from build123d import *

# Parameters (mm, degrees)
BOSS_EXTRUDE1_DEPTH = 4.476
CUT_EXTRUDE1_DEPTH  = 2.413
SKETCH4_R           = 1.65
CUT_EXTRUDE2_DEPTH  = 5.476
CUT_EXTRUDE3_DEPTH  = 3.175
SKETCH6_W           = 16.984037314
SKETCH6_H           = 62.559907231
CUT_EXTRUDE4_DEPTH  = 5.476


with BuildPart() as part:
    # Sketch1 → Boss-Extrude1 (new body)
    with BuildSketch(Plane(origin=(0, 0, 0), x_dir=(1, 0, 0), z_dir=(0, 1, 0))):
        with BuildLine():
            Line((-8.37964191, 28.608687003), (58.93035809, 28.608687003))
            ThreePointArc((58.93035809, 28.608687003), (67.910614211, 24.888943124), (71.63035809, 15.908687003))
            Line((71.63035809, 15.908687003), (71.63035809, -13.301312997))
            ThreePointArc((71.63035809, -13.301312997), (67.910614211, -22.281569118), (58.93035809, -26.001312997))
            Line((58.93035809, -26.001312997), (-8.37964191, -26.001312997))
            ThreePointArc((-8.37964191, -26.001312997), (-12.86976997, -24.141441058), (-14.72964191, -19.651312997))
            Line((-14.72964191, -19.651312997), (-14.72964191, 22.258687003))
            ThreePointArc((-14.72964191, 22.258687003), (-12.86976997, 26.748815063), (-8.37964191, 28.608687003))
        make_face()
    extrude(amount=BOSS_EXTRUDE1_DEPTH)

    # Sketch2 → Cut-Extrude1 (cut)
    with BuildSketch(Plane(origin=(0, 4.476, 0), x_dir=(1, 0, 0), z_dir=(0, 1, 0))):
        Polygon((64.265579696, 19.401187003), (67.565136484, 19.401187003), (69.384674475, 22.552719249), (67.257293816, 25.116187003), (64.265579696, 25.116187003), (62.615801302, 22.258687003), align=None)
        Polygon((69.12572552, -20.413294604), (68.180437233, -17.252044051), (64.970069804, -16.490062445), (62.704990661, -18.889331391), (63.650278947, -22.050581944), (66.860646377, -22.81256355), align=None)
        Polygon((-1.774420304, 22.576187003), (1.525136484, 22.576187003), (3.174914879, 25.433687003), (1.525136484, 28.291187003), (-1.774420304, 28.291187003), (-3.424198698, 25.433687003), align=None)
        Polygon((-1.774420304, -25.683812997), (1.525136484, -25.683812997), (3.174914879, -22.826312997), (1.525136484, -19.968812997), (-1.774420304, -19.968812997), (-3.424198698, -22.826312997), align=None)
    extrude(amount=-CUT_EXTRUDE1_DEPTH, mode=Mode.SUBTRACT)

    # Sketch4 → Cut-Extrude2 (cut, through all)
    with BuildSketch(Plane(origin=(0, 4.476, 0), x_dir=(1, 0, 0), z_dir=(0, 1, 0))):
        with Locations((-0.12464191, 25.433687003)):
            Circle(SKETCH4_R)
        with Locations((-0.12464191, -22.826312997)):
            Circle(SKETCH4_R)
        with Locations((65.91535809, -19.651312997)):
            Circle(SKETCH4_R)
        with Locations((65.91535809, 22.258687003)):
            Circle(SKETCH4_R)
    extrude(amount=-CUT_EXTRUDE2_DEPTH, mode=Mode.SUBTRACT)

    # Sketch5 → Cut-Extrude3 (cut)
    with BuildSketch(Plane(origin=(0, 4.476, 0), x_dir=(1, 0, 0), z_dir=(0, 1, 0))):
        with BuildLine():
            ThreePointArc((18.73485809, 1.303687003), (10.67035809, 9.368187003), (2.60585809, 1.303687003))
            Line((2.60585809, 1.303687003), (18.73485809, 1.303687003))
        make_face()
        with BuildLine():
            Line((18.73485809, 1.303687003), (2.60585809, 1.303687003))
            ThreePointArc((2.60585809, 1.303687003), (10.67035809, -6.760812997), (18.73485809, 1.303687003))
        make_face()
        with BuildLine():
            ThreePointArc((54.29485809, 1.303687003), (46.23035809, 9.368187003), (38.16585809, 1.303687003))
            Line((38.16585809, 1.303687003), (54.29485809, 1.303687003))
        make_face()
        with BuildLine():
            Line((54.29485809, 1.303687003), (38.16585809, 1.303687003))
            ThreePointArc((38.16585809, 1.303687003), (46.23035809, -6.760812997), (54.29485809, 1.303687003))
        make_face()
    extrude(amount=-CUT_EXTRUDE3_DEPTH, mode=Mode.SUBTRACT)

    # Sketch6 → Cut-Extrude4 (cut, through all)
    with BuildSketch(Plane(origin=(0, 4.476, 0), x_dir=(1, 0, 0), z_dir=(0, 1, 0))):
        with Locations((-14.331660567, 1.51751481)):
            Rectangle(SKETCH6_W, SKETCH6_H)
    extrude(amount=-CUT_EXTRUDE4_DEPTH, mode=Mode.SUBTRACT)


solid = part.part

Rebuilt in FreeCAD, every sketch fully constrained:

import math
import FreeCAD as App
import Part
import Sketcher
from FreeCAD import Vector
Q = App.Units.Quantity

doc = App.newDocument("Part")
body = doc.addObject("PartDesign::Body", "Body")

# Sketch on XZ plane
sketch1 = body.newObject("Sketcher::SketchObject", "Sketch")
sketch1.AttachmentSupport = (doc.getObject("XZ_Plane"), [""])
sketch1.MapMode = "FlatFace"
sketch1.addGeometry([
    Part.LineSegment(Vector(59, -29, 0), Vector(-8, -29, 0)),  # 0
    Part.ArcOfCircle(Part.Circle(Vector(-8, -22, 0), Vector(0, 0, 1), 6), math.radians(-180), math.radians(-90)),  # 1
    Part.LineSegment(Vector(-15, -22, 0), Vector(-15, 20, 0)),  # 2
    Part.ArcOfCircle(Part.Circle(Vector(-8, 20, 0), Vector(0, 0, 1), 6), math.radians(90), math.radians(180)),  # 3
    Part.LineSegment(Vector(-8, 26, 0), Vector(59, 26, 0)),  # 4
    Part.ArcOfCircle(Part.Circle(Vector(59, 13, 0), Vector(0, 0, 1), 13), math.radians(0), math.radians(90)),  # 5
    Part.LineSegment(Vector(72, 13, 0), Vector(72, -16, 0)),  # 6
    Part.ArcOfCircle(Part.Circle(Vector(59, -16, 0), Vector(0, 0, 1), 13), math.radians(-90), math.radians(0)),  # 7
], False)
sketch1.addConstraint([
    Sketcher.Constraint("Tangent", 0, 2, 1, 2),
    Sketcher.Constraint("Tangent", 1, 1, 2, 1),
    Sketcher.Constraint("Tangent", 2, 2, 3, 2),
    Sketcher.Constraint("Tangent", 3, 1, 4, 1),
    Sketcher.Constraint("Tangent", 4, 2, 5, 2),
    Sketcher.Constraint("Tangent", 5, 1, 6, 1),
    Sketcher.Constraint("Tangent", 6, 2, 7, 2),
    Sketcher.Constraint("Tangent", 7, 1, 0, 1),
    Sketcher.Constraint("Horizontal", 0),
    Sketcher.Constraint("Vertical", 2),
    Sketcher.Constraint("Horizontal", 4),
    Sketcher.Constraint("Vertical", 6),
    Sketcher.Constraint("Equal", 1, 3),
    Sketcher.Constraint("Equal", 5, 7),
    Sketcher.Constraint("Radius", 5, Q("0.5 in")),
    Sketcher.Constraint("Radius", 1, Q("0.25 in")),
    Sketcher.Constraint("DistanceX", 0, 2, 0, 1, Q("2.65 in")),
    Sketcher.Constraint("DistanceY", 2, 1, 2, 2, Q("1.65 in")),
    Sketcher.Constraint("DistanceX", 1, 3, -1, 1, Q("8.379642 mm")),
    Sketcher.Constraint("DistanceY", 1, 3, -1, 1, Q("22.258687 mm")),
])
pad1 = body.newObject("PartDesign::Pad", "Pad")
pad1.Profile = sketch1
pad1.Length = 4.476
pad1.Reversed = True

# Sketch on XZ plane
sketch2 = body.newObject("Sketcher::SketchObject", "Sketch001")
sketch2.AttachmentSupport = (doc.getObject("XZ_Plane"), [""])
sketch2.MapMode = "FlatFace"
sketch2.AttachmentOffset = App.Placement(Vector(0, 0, -4.476), App.Rotation())
sketch2.addGeometry([
    Part.LineSegment(Vector(64.3, -19.4, 0), Vector(67.6, -19.4, 0)),  # 0
    Part.LineSegment(Vector(67.6, -19.4, 0), Vector(69.4, -22.6, 0)),  # 1
    Part.LineSegment(Vector(69.4, -22.6, 0), Vector(67.3, -25.1, 0)),  # 2
    Part.LineSegment(Vector(67.3, -25.1, 0), Vector(64.3, -25.1, 0)),  # 3
    Part.LineSegment(Vector(64.3, -25.1, 0), Vector(62.6, -22.3, 0)),  # 4
    Part.LineSegment(Vector(62.6, -22.3, 0), Vector(64.3, -19.4, 0)),  # 5
    Part.LineSegment(Vector(69.1, 20.4, 0), Vector(68.2, 17.3, 0)),  # 6
    Part.LineSegment(Vector(68.2, 17.3, 0), Vector(65, 16.5, 0)),  # 7
    Part.LineSegment(Vector(65, 16.5, 0), Vector(62.7, 18.9, 0)),  # 8
    Part.LineSegment(Vector(62.7, 18.9, 0), Vector(63.7, 22.1, 0)),  # 9
    Part.LineSegment(Vector(63.7, 22.1, 0), Vector(66.9, 22.8, 0)),  # 10
    Part.LineSegment(Vector(66.9, 22.8, 0), Vector(69.1, 20.4, 0)),  # 11
    Part.LineSegment(Vector(-1.8, -22.6, 0), Vector(1.5, -22.6, 0)),  # 12
    Part.LineSegment(Vector(1.5, -22.6, 0), Vector(3.2, -25.4, 0)),  # 13
    Part.LineSegment(Vector(3.2, -25.4, 0), Vector(1.5, -28.3, 0)),  # 14
    Part.LineSegment(Vector(1.5, -28.3, 0), Vector(-1.8, -28.3, 0)),  # 15
    Part.LineSegment(Vector(-1.8, -28.3, 0), Vector(-3.4, -25.4, 0)),  # 16
    Part.LineSegment(Vector(-3.4, -25.4, 0), Vector(-1.8, -22.6, 0)),  # 17
    Part.LineSegment(Vector(-1.8, 25.7, 0), Vector(1.5, 25.7, 0)),  # 18
    Part.LineSegment(Vector(1.5, 25.7, 0), Vector(3.2, 22.8, 0)),  # 19
    Part.LineSegment(Vector(3.2, 22.8, 0), Vector(1.5, 20, 0)),  # 20
    Part.LineSegment(Vector(1.5, 20, 0), Vector(-1.8, 20, 0)),  # 21
    Part.LineSegment(Vector(-1.8, 20, 0), Vector(-3.4, 22.8, 0)),  # 22
    Part.LineSegment(Vector(-3.4, 22.8, 0), Vector(-1.8, 25.7, 0)),  # 23
], False)
sketch2.addConstraint([
    Sketcher.Constraint("Coincident", 0, 2, 1, 1),
    Sketcher.Constraint("Coincident", 1, 2, 2, 1),
    Sketcher.Constraint("Coincident", 2, 2, 3, 1),
    Sketcher.Constraint("Coincident", 3, 2, 4, 1),
    Sketcher.Constraint("Coincident", 4, 2, 5, 1),
    Sketcher.Constraint("Coincident", 5, 2, 0, 1),
    Sketcher.Constraint("Coincident", 6, 2, 7, 1),
    Sketcher.Constraint("Coincident", 7, 2, 8, 1),
    Sketcher.Constraint("Coincident", 8, 2, 9, 1),
    Sketcher.Constraint("Coincident", 9, 2, 10, 1),
    Sketcher.Constraint("Coincident", 10, 2, 11, 1),
    Sketcher.Constraint("Coincident", 11, 2, 6, 1),
    Sketcher.Constraint("Coincident", 12, 2, 13, 1),
    Sketcher.Constraint("Coincident", 13, 2, 14, 1),
    Sketcher.Constraint("Coincident", 14, 2, 15, 1),
    Sketcher.Constraint("Coincident", 15, 2, 16, 1),
    Sketcher.Constraint("Coincident", 16, 2, 17, 1),
    Sketcher.Constraint("Coincident", 17, 2, 12, 1),
    Sketcher.Constraint("Coincident", 18, 2, 19, 1),
    Sketcher.Constraint("Coincident", 19, 2, 20, 1),
    Sketcher.Constraint("Coincident", 20, 2, 21, 1),
    Sketcher.Constraint("Coincident", 21, 2, 22, 1),
    Sketcher.Constraint("Coincident", 22, 2, 23, 1),
    Sketcher.Constraint("Coincident", 23, 2, 18, 1),
    Sketcher.Constraint("Horizontal", 0),
    Sketcher.Constraint("Horizontal", 3),
    Sketcher.Constraint("Horizontal", 12),
    Sketcher.Constraint("Horizontal", 15),
    Sketcher.Constraint("Horizontal", 18),
    Sketcher.Constraint("Horizontal", 21),
    Sketcher.Constraint("Parallel", 1, 4),
    Sketcher.Constraint("Parallel", 6, 9),
    Sketcher.Constraint("Parallel", 7, 10),
    Sketcher.Constraint("Parallel", 8, 11),
    Sketcher.Constraint("Parallel", 4, 13),
    Sketcher.Constraint("Parallel", 5, 14),
    Sketcher.Constraint("Parallel", 13, 16),
    Sketcher.Constraint("Parallel", 14, 17),
    Sketcher.Constraint("Parallel", 16, 19),
    Sketcher.Constraint("Parallel", 17, 20),
    Sketcher.Constraint("Parallel", 19, 22),
    Sketcher.Constraint("Parallel", 20, 23),
    Sketcher.Constraint("Horizontal", 13, 2, 16, 2),
    Sketcher.Constraint("Horizontal", 19, 2, 22, 2),
    Sketcher.Constraint("Vertical", 3, 2, 5, 2),
    Sketcher.Constraint("Vertical", 12, 2, 14, 2),
    Sketcher.Constraint("Vertical", 15, 2, 17, 2),
    Sketcher.Constraint("Vertical", 14, 2, 18, 2),
    Sketcher.Constraint("Vertical", 13, 2, 19, 2),
    Sketcher.Constraint("Vertical", 18, 2, 20, 2),
    Sketcher.Constraint("Vertical", 17, 2, 21, 2),
    Sketcher.Constraint("Equal", 0, 12),
    Sketcher.Constraint("Equal", 5, 6),
    Sketcher.Constraint("Equal", 6, 7),
    Sketcher.Constraint("Equal", 7, 8),
    Sketcher.Constraint("Equal", 8, 9),
    Sketcher.Constraint("Equal", 11, 13),
    Sketcher.Constraint("Angle", 1, Q("-60 deg")),
    Sketcher.Constraint("DistanceY", 3, 2, 12, 2, Q("0.1 in")),
    Sketcher.Constraint("DistanceX", 12, 2, 0, 2, Q("2.6 in")),
    Sketcher.Constraint("DistanceY", 12, 2, 18, 2, Q("1.9 in")),
    Sketcher.Constraint("DistanceY", 14, 2, 5, 2, Q("0.35 in")),
    Sketcher.Constraint("DistanceX", -1, 1, 4, 2, Q("62.615801 mm")),
    Sketcher.Constraint("DistanceX", 0, 2, 6, 2, Q("0.615301 mm")),
    Sketcher.Constraint("DistanceX", 9, 2, 5, 2, Q("0.615301 mm")),
    Sketcher.Constraint("DistanceY", 7, 2, 10, 2, Q("6.322501 mm")),
    Sketcher.Constraint("DistanceX", 0, 1, 0, 2, Q("3.299557 mm")),
    Sketcher.Constraint("DistanceX", 3, 2, 3, 1, Q("2.991714 mm")),
    Sketcher.Constraint("DistanceY", 1, 2, -1, 1, Q("22.552719 mm")),
    Sketcher.Constraint("DistanceX", -1, 1, 7, 2, Q("64.97007 mm")),
    Sketcher.Constraint("DistanceY", -1, 1, 8, 2, Q("18.889331 mm")),
    Sketcher.Constraint("DistanceX", 2, 2, 1, 2, Q("2.127381 mm")),
])
pocket1 = body.newObject("PartDesign::Pocket", "Pocket")
pocket1.Profile = sketch2
pocket1.Length = Q("0.095 in")
pocket1.Reversed = True

# Sketch on XZ plane
sketch3 = body.newObject("Sketcher::SketchObject", "Sketch002")
sketch3.AttachmentSupport = (doc.getObject("XZ_Plane"), [""])
sketch3.MapMode = "FlatFace"
sketch3.AttachmentOffset = App.Placement(Vector(0, 0, -4.476), App.Rotation())
sketch3.addGeometry([
    Part.Circle(Vector(-0.1, -25.4, 0), Vector(0, 0, 1), 1.6),
    Part.Circle(Vector(-0.1, 22.8, 0), Vector(0, 0, 1), 1.6),
    Part.Circle(Vector(65.9, 19.7, 0), Vector(0, 0, 1), 1.6),
    Part.Circle(Vector(65.9, -22.3, 0), Vector(0, 0, 1), 1.6),
], False)
sketch3.addConstraint([
    Sketcher.Constraint("Equal", 0, 1),
    Sketcher.Constraint("Equal", 1, 2),
    Sketcher.Constraint("Equal", 2, 3),
    Sketcher.Constraint("Vertical", 0, 3, 1, 3),
    Sketcher.Constraint("Vertical", 2, 3, 3, 3),
    Sketcher.Constraint("DistanceY", 0, 3, 1, 3, Q("1.9 in")),
    Sketcher.Constraint("DistanceX", 1, 3, 2, 3, Q("2.6 in")),
    Sketcher.Constraint("Diameter", 0, Q("3.3 mm")),
    Sketcher.Constraint("DistanceY", 3, 3, 2, 3, Q("1.65 in")),
    Sketcher.Constraint("DistanceY", 2, 3, 1, 3, Q("0.125 in")),
    Sketcher.Constraint("DistanceX", 0, 3, -1, 1, Q("0.124642 mm")),
    Sketcher.Constraint("DistanceY", 0, 3, -1, 1, Q("25.433687 mm")),
])
pocket2 = body.newObject("PartDesign::Pocket", "Pocket001")
pocket2.Profile = sketch3
pocket2.Type = "ThroughAll"
pocket2.Reversed = True

# Sketch on XZ plane
sketch4 = body.newObject("Sketcher::SketchObject", "Sketch003")
sketch4.AttachmentSupport = (doc.getObject("XZ_Plane"), [""])
sketch4.MapMode = "FlatFace"
sketch4.AttachmentOffset = App.Placement(Vector(0, 0, -4.476), App.Rotation())
sketch4.addGeometry([
    Part.Circle(Vector(11, -1, 0), Vector(0, 0, 1), 8),
    Part.Circle(Vector(46, -1, 0), Vector(0, 0, 1), 8),
], False)
sketch4.addConstraint([
    Sketcher.Constraint("Equal", 0, 1),
    Sketcher.Constraint("Horizontal", 0, 3, 1, 3),
    Sketcher.Constraint("Diameter", 0, Q("0.635 in")),
    Sketcher.Constraint("DistanceX", 0, 3, 1, 3, Q("1.4 in")),
    Sketcher.Constraint("DistanceX", -1, 1, 0, 3, Q("10.670358 mm")),
    Sketcher.Constraint("DistanceY", 0, 3, -1, 1, Q("1.303687 mm")),
])
pocket3 = body.newObject("PartDesign::Pocket", "Pocket002")
pocket3.Profile = sketch4
pocket3.Length = Q("0.125 in")
pocket3.Reversed = True

# Sketch on XZ plane
sketch5 = body.newObject("Sketcher::SketchObject", "Sketch004")
sketch5.AttachmentSupport = (doc.getObject("XZ_Plane"), [""])
sketch5.MapMode = "FlatFace"
sketch5.AttachmentOffset = App.Placement(Vector(0, 0, -4.476), App.Rotation())
sketch5.addGeometry([
    Part.LineSegment(Vector(-23, -33, 0), Vector(-23, 30, 0)),
    Part.LineSegment(Vector(-23, 30, 0), Vector(-6, 30, 0)),
    Part.LineSegment(Vector(-6, 30, 0), Vector(-6, -33, 0)),
    Part.LineSegment(Vector(-6, -33, 0), Vector(-23, -33, 0)),
], False)
sketch5.addConstraint([
    Sketcher.Constraint("Coincident", 0, 2, 1, 1),
    Sketcher.Constraint("Coincident", 1, 2, 2, 1),
    Sketcher.Constraint("Coincident", 2, 2, 3, 1),
    Sketcher.Constraint("Coincident", 3, 2, 0, 1),
    Sketcher.Constraint("Vertical", 0),
    Sketcher.Constraint("Horizontal", 1),
    Sketcher.Constraint("Vertical", 2),
    Sketcher.Constraint("Horizontal", 3),
    Sketcher.Constraint("DistanceX", 1, 1, 1, 2, Q("16.984037 mm")),
    Sketcher.Constraint("DistanceY", 0, 1, 0, 2, Q("62.559907 mm")),
    Sketcher.Constraint("DistanceX", 0, 2, -1, 1, Q("22.823679 mm")),
    Sketcher.Constraint("DistanceY", -1, 1, 0, 2, Q("29.762439 mm")),
])
pocket4 = body.newObject("PartDesign::Pocket", "Pocket003")
pocket4.Profile = sketch5
pocket4.Type = "ThroughAll"
pocket4.Reversed = True

doc.recompute()
